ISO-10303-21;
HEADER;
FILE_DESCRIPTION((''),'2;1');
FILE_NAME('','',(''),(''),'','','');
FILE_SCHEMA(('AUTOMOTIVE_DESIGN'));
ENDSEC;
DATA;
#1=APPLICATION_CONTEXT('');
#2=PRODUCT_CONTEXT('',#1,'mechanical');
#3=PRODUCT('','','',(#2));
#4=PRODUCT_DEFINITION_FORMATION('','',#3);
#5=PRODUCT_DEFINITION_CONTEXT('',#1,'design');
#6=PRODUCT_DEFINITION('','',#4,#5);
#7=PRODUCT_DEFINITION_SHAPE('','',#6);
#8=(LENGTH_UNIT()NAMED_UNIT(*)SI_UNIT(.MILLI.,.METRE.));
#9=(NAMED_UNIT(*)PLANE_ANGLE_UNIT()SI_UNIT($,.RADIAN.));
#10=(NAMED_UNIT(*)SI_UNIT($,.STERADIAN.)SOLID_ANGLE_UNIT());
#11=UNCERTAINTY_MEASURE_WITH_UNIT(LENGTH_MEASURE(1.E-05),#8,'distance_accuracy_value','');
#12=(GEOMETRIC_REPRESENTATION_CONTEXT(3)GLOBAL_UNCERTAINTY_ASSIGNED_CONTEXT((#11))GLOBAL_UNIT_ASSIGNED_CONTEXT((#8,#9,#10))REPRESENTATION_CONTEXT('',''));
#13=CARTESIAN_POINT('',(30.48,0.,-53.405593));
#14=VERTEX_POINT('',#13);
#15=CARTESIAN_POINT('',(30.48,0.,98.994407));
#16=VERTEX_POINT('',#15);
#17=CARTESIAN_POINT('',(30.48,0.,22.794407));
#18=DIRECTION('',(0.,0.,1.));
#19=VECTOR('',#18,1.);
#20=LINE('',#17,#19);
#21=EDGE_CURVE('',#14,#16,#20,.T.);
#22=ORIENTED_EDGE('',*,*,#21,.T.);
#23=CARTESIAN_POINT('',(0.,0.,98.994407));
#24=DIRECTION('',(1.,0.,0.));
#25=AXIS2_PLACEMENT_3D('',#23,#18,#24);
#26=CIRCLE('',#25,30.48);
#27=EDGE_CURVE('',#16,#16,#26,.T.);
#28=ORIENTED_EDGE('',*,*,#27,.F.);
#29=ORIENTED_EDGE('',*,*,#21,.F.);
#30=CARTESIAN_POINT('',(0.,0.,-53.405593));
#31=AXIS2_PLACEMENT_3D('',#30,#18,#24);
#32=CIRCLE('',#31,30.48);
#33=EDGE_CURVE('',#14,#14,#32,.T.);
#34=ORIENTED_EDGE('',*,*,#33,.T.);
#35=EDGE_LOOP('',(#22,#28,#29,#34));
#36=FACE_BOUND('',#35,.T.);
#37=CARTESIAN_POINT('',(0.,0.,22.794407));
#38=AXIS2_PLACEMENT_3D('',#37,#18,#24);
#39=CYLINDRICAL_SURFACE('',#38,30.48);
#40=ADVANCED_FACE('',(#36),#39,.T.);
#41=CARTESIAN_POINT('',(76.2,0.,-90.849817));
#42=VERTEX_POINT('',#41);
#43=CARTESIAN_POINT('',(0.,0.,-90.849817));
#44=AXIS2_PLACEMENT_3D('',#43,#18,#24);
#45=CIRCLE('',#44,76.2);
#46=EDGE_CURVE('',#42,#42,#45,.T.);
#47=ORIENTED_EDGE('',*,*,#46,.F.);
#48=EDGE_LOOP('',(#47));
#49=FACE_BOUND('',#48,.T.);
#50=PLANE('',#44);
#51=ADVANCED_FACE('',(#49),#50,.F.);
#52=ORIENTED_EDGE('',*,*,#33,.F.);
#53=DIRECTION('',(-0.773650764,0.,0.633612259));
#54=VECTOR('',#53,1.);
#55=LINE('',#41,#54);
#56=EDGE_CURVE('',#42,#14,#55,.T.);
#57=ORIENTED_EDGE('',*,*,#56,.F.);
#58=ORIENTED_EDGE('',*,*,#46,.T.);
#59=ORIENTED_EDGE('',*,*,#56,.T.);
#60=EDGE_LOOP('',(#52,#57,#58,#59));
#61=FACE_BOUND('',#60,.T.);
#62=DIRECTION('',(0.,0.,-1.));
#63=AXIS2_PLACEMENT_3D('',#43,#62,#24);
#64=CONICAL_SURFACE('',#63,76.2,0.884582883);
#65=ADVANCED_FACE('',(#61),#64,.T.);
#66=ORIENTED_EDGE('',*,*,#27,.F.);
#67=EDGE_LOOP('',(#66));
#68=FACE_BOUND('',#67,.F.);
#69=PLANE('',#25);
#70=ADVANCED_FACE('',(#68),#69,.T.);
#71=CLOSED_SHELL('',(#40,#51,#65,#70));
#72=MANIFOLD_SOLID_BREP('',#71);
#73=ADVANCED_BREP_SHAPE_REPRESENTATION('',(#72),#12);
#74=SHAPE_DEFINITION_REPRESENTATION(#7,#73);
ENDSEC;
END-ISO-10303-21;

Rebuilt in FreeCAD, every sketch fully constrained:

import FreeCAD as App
import Part
import Sketcher
from FreeCAD import Vector
Q = App.Units.Quantity


def add_polygon(sketch, points):
    """Adds a closed chain of lines whose ends are joined by coincident constraints."""
    first, n = sketch.GeometryCount, len(points)
    for a, b in zip(points, points[1:] + points[:1]):
        sketch.addGeometry(Part.LineSegment(App.Vector(*a, 0), App.Vector(*b, 0)), False)
    for i in range(n):
        sketch.addConstraint(Sketcher.Constraint("Coincident", first + i, 2, first + (i + 1) % n, 1))

doc = App.newDocument("Part")
body = doc.addObject("PartDesign::Body", "Body")

# Sketch on XZ plane
sketch1 = body.newObject("Sketcher::SketchObject", "Sketch")
sketch1.AttachmentSupport = (doc.getObject("XZ_Plane"), [""])
sketch1.MapMode = "FlatFace"
add_polygon(sketch1, [(0, -91), (76, -91), (30, -53), (30, 99), (0, 99)])  # lines 0-4
sketch1.addConstraint(Sketcher.Constraint("Horizontal", 0))
sketch1.addConstraint(Sketcher.Constraint("Vertical", 2))
sketch1.addConstraint(Sketcher.Constraint("Horizontal", 3))
sketch1.addConstraint(Sketcher.Constraint("Vertical", 4))
sketch1.addConstraint(Sketcher.Constraint("PointOnObject", 3, 2, -2))
sketch1.addConstraint(Sketcher.Constraint("DistanceX", 0, 1, 0, 2, Q("3 in")))
sketch1.addConstraint(Sketcher.Constraint("DistanceY", 2, 1, 2, 2, Q("6 in")))
sketch1.addConstraint(Sketcher.Constraint("DistanceX", 3, 2, 3, 1, Q("1.2 in")))
sketch1.addConstraint(Sketcher.Constraint("DistanceY", 4, 2, 4, 1, 189.844224))
sketch1.addConstraint(Sketcher.Constraint("DistanceY", 0, 2, -1, 1, 90.849817))
revolution = body.newObject("PartDesign::Revolution", "Revolution")
revolution.Profile = sketch1
revolution.ReferenceAxis = (sketch1, ["V_Axis"])
revolution.Angle = 360

doc.recompute()
